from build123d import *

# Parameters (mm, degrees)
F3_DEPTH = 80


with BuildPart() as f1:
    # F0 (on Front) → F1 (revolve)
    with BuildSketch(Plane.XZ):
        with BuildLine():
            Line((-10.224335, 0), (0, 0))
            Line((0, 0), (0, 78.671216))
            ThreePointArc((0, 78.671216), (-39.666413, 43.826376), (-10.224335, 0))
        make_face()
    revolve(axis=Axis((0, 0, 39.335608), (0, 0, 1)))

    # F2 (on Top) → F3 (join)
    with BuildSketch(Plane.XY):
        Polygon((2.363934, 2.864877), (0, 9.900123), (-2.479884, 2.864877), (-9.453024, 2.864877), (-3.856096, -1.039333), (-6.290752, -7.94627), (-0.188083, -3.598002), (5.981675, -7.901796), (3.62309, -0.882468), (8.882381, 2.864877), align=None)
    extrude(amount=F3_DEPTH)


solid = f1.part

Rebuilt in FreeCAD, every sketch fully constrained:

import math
import FreeCAD as App
import Part
import Sketcher


def add_polygon(sketch, points):
    """Adds a closed chain of lines whose ends are joined by coincident constraints."""
    first, n = sketch.GeometryCount, len(points)
    for a, b in zip(points, points[1:] + points[:1]):
        sketch.addGeometry(Part.LineSegment(App.Vector(*a, 0), App.Vector(*b, 0)), False)
    for i in range(n):
        sketch.addConstraint(Sketcher.Constraint("Coincident", first + i, 2, first + (i + 1) % n, 1))

doc = App.newDocument("Part")
params = doc.addObject("Spreadsheet::Sheet", "Params")
for row, (alias, value) in enumerate([
    ("sketch1_radius", "40 mm"),
    ("revolution_angle", "360 deg"),
    ("pad1_length", "80 mm"),
], start=1):
    params.set(f"A{row}", alias)
    params.set(f"B{row}", "=" + value)
    params.setAlias(f"B{row}", alias)

body = doc.addObject("PartDesign::Body", "Body")

sketch1 = doc.addObject("Sketcher::SketchObject", "Sketch")
body.addObject(sketch1)
sketch1.AttachmentSupport = (doc.XZ_Plane, [""])
sketch1.MapMode = "FlatFace"
sketch1.addGeometry([
    Part.LineSegment(App.Vector(-10, 0, 0), App.Vector(0, 0, 0)),
    Part.LineSegment(App.Vector(0, 0, 0), App.Vector(0, 79, 0)),
    Part.ArcOfCircle(Part.Circle(App.Vector(0, 39, 0), App.Vector(0, 0, 1), 40), math.radians(90), math.radians(255)),
], False)
sketch1.addConstraint([
    Sketcher.Constraint("Coincident", 0, 2, 1, 1),
    Sketcher.Constraint("Coincident", 1, 2, 2, 1),
    Sketcher.Constraint("Coincident", 2, 2, 0, 1),
    Sketcher.Constraint("Horizontal", 0),
    Sketcher.Constraint("Vertical", 1),
    Sketcher.Constraint("Coincident", 0, 2, -1, 1),
    Sketcher.Constraint("PointOnObject", 2, 3, -2),
    Sketcher.Constraint("Radius", 2, 40.0),
    Sketcher.Constraint("DistanceX", 0, 1, 0, 2, 10.224335),
])
sketch1.setExpression("Constraints[7]", "Params.sketch1_radius")
revolution = doc.addObject("PartDesign::Revolution", "Revolution")
body.addObject(revolution)
revolution.Profile = sketch1
revolution.ReferenceAxis = (sketch1, ["V_Axis"])
revolution.setExpression("Angle", "Params.revolution_angle")

sketch2 = doc.addObject("Sketcher::SketchObject", "Sketch001")
body.addObject(sketch2)
sketch2.AttachmentSupport = (doc.XY_Plane, [""])
sketch2.MapMode = "FlatFace"
add_polygon(sketch2, [(2.363934, 2.864877), (0, 9.900123), (-2.479884, 2.864877), (-9.453024, 2.864877), (-3.856096, -1.039333), (-6.290752, -7.94627), (-0.188083, -3.598002), (5.981675, -7.901796), (3.62309, -0.882468), (8.882381, 2.864877)])
sketch2.addConstraint([
    Sketcher.Constraint("Horizontal", 2),
    Sketcher.Constraint("Horizontal", 9),
    Sketcher.Constraint("PointOnObject", 0, 2, -2),
    Sketcher.Constraint("DistanceX", 2, 2, 2, 1, 6.97314),
    Sketcher.Constraint("DistanceX", 1, 2, 5, 2, 2.291801),
    Sketcher.Constraint("Distance", 3, 6.824109),
    Sketcher.Constraint("Distance", 5, 7.493331),
    Sketcher.Constraint("Distance", 7, 7.404991),
    Sketcher.Constraint("DistanceX", 9, 2, 9, 1, 6.518447),
    Sketcher.Constraint("DistanceY", 4, 2, -1, 1, 7.94627),
    Sketcher.Constraint("DistanceX", -1, 1, 7, 2, 3.62309),
    Sketcher.Constraint("DistanceY", 7, 2, -1, 1, 0.882468),
    Sketcher.Constraint("DistanceX", -1, 1, 8, 2, 8.882381),
    Sketcher.Constraint("DistanceX", 3, 2, 1, 2, 1.376212),
    Sketcher.Constraint("DistanceX", 2, 2, 4, 2, 3.162272),
    Sketcher.Constraint("DistanceY", 5, 2, 3, 2, 2.558669),
    Sketcher.Constraint("DistanceX", 3, 2, 6, 2, 9.837771),
    Sketcher.Constraint("DistanceY", 6, 2, 0, 2, 17.801919),
    Sketcher.Constraint("DistanceY", 7, 2, 0, 2, 10.782591),
    Sketcher.Constraint("DistanceY", 5, 2, 8, 2, 6.462879),
])
pad1 = doc.addObject("PartDesign::Pad", "Pad")
body.addObject(pad1)
pad1.Profile = sketch2
pad1.setExpression("Length", "Params.pad1_length")

doc.recompute()
